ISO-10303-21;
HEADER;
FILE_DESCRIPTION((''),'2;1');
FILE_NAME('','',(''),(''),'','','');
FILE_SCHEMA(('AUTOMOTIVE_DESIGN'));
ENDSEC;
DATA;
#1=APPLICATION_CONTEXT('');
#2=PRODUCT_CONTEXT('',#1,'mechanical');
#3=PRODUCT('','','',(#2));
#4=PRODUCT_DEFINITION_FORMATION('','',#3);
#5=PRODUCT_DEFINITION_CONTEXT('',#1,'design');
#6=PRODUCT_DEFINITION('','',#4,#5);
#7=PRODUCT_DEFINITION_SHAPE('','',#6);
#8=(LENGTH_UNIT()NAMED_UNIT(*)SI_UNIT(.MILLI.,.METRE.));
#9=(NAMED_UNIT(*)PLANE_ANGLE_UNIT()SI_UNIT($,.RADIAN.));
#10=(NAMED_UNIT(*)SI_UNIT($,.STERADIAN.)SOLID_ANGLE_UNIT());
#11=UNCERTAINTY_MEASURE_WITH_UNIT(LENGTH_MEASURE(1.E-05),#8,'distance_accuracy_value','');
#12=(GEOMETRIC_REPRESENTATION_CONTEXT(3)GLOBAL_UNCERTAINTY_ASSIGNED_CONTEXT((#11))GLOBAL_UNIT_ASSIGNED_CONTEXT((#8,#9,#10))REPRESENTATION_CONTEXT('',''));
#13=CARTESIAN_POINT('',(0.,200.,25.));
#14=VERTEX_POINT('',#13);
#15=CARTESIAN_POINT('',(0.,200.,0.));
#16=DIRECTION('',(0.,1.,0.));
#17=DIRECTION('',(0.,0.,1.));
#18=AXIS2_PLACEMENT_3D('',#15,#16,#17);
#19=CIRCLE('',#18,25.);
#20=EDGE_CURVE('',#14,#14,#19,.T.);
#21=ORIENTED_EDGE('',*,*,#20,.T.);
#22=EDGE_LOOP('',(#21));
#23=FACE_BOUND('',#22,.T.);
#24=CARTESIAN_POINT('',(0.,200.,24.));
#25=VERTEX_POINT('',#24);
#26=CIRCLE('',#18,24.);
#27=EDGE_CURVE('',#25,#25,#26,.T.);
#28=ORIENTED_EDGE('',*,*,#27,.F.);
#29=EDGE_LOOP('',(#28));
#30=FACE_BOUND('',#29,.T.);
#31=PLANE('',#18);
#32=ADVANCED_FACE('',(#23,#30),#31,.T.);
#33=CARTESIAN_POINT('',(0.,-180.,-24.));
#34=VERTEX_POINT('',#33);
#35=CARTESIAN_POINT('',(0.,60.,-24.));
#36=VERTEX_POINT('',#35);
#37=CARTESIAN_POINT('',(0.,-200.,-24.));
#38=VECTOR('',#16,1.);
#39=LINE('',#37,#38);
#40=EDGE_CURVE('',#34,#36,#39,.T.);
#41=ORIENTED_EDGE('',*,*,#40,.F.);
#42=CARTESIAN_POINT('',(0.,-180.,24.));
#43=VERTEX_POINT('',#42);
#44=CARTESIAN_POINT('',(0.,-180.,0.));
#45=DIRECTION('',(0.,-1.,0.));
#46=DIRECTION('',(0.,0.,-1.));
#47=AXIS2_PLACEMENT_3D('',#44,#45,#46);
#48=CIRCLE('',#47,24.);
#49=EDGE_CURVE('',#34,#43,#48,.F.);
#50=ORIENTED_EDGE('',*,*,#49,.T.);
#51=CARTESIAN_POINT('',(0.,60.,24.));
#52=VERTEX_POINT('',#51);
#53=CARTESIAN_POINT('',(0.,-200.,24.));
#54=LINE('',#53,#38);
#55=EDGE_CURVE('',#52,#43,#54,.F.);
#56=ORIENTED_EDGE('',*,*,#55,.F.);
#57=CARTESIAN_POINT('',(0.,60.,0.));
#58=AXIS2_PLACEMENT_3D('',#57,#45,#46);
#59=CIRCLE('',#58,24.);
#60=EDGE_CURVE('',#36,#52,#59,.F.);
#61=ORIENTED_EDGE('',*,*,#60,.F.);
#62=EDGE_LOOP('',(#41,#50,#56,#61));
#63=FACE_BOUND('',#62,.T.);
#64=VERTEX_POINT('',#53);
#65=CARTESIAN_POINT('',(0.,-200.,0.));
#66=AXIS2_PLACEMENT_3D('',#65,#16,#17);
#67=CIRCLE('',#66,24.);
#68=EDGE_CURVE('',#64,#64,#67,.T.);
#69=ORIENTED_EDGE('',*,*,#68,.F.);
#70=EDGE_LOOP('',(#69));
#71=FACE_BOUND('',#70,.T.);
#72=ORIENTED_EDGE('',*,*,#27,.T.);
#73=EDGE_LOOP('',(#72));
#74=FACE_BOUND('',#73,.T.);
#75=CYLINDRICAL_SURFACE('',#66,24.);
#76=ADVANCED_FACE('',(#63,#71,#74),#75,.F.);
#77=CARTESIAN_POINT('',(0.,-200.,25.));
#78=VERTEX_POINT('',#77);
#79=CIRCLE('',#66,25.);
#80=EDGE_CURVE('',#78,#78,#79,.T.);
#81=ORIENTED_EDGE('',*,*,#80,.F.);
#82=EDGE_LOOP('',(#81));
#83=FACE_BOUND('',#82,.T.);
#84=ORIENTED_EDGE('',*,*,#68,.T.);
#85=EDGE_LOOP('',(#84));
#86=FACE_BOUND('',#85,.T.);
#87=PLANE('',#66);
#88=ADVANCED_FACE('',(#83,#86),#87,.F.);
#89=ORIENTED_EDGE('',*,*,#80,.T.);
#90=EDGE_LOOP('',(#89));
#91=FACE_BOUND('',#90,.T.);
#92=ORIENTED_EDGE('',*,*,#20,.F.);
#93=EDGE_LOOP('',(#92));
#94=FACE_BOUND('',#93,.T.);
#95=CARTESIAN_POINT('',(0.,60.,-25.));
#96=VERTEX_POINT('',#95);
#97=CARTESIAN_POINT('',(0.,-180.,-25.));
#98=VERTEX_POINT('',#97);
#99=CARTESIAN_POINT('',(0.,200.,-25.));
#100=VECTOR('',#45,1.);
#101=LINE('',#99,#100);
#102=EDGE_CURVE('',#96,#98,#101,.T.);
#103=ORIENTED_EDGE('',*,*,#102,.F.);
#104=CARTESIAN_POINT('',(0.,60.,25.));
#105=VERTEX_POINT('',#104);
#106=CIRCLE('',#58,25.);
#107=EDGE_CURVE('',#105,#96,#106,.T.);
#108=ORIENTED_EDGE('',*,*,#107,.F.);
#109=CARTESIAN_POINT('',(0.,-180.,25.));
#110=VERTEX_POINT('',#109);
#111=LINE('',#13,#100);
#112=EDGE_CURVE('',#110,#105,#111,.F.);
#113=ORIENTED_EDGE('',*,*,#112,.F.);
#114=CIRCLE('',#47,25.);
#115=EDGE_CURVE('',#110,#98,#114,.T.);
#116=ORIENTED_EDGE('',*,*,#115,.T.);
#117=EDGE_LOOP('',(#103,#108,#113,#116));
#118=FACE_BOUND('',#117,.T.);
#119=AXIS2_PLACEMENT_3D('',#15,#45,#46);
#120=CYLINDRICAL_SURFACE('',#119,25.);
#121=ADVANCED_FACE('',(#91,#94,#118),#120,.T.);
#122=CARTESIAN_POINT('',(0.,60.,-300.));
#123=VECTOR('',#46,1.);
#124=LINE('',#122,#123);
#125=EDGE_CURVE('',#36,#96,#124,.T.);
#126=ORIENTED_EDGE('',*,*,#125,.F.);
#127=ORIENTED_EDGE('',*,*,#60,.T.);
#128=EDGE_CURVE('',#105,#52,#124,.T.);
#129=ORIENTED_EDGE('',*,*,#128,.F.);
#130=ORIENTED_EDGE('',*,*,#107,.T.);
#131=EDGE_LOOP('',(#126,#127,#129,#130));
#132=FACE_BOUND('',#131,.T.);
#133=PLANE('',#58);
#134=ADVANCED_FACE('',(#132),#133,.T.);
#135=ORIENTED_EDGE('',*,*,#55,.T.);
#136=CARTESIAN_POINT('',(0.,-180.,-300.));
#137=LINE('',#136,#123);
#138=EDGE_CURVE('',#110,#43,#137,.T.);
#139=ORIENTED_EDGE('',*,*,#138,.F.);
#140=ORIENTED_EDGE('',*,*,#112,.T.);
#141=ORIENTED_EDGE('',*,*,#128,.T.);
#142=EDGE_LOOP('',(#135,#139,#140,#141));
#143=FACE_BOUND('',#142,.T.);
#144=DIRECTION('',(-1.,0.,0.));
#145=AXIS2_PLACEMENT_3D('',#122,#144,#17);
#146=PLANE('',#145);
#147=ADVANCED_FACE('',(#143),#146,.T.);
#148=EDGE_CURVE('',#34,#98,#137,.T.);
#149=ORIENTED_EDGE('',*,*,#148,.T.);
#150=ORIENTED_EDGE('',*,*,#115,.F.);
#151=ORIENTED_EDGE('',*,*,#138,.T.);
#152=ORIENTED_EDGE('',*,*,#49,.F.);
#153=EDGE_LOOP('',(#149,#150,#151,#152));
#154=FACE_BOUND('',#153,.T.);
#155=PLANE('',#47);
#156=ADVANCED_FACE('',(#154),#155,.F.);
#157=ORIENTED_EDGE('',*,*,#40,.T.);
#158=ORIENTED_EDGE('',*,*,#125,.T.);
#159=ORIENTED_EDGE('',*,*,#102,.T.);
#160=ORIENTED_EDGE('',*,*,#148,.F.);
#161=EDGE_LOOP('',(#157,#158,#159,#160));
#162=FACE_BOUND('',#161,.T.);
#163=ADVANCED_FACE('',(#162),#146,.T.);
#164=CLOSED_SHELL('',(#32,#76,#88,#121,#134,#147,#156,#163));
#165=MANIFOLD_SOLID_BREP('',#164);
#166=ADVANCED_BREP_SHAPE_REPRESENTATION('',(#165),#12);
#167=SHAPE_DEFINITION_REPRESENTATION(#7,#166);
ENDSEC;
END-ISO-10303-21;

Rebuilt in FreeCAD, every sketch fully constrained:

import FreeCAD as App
import Part
import Sketcher

V = App.Vector

doc = App.newDocument("Part")
body = doc.addObject("PartDesign::Body", "Body")

sketch1 = body.newObject("Sketcher::SketchObject", "Sketch")
sketch1.AttachmentSupport = (doc.getObject("XZ_Plane"), [""])
sketch1.MapMode = "FlatFace"
sketch1.addGeometry(Part.Circle(V(0, 0, 0), V(0, 0, 1), 25), False)
sketch1.addConstraint([
    Sketcher.Constraint("Coincident", 0, 3, -1, 1),
    Sketcher.Constraint("Diameter", 0, 50.0),
])
pad1 = body.newObject("PartDesign::Pad", "Pad")
pad1.Profile = sketch1
pad1.Type = "TwoLengths"
pad1.Length = 200
pad1.Length2 = 200
pad1.Reversed = True

sketch2 = body.newObject("Sketcher::SketchObject", "Sketch001")
sketch2.AttachmentSupport = (doc.getObject("XZ_Plane"), [""])
sketch2.MapMode = "FlatFace"
sketch2.AttachmentOffset = App.Placement(V(0, 0, -200), App.Rotation())
sketch2.addGeometry(Part.Circle(V(0, 0, 0), V(0, 0, 1), 24), False)
sketch2.addConstraint([
    Sketcher.Constraint("Coincident", 0, 3, -1, 1),
    Sketcher.Constraint("Diameter", 0, 48.0),
])
pocket1 = body.newObject("PartDesign::Pocket", "Pocket")
pocket1.Profile = sketch2
pocket1.Length = 400
pocket1.Reversed = True

sketch3 = body.newObject("Sketcher::SketchObject", "Sketch002")
sketch3.AttachmentSupport = (doc.getObject("XZ_Plane"), [""])
sketch3.MapMode = "FlatFace"
sketch3.addGeometry([
    Part.LineSegment(V(-240, -300, 0), V(-240, 300, 0)),
    Part.LineSegment(V(-240, 300, 0), V(0, 300, 0)),
    Part.LineSegment(V(0, 300, 0), V(0, -300, 0)),
    Part.LineSegment(V(0, -300, 0), V(-240, -300, 0)),
], False)
sketch3.addConstraint([
    Sketcher.Constraint("Coincident", 0, 2, 1, 1),
    Sketcher.Constraint("Coincident", 1, 2, 2, 1),
    Sketcher.Constraint("Coincident", 2, 2, 3, 1),
    Sketcher.Constraint("Coincident", 3, 2, 0, 1),
    Sketcher.Constraint("Vertical", 0),
    Sketcher.Constraint("Horizontal", 1),
    Sketcher.Constraint("Vertical", 2),
    Sketcher.Constraint("Horizontal", 3),
    Sketcher.Constraint("Symmetric", 1, 2, 2, 2, -1, 1),
    Sketcher.Constraint("DistanceX", 1, 1, 1, 2, 240.0),
    Sketcher.Constraint("DistanceY", 0, 1, 0, 2, 600.0),
])
pocket2 = body.newObject("PartDesign::Pocket", "Pocket001")
pocket2.Profile = sketch3
pocket2.Type = "TwoLengths"
pocket2.Length = 60
pocket2.Length2 = 180

doc.recompute()
